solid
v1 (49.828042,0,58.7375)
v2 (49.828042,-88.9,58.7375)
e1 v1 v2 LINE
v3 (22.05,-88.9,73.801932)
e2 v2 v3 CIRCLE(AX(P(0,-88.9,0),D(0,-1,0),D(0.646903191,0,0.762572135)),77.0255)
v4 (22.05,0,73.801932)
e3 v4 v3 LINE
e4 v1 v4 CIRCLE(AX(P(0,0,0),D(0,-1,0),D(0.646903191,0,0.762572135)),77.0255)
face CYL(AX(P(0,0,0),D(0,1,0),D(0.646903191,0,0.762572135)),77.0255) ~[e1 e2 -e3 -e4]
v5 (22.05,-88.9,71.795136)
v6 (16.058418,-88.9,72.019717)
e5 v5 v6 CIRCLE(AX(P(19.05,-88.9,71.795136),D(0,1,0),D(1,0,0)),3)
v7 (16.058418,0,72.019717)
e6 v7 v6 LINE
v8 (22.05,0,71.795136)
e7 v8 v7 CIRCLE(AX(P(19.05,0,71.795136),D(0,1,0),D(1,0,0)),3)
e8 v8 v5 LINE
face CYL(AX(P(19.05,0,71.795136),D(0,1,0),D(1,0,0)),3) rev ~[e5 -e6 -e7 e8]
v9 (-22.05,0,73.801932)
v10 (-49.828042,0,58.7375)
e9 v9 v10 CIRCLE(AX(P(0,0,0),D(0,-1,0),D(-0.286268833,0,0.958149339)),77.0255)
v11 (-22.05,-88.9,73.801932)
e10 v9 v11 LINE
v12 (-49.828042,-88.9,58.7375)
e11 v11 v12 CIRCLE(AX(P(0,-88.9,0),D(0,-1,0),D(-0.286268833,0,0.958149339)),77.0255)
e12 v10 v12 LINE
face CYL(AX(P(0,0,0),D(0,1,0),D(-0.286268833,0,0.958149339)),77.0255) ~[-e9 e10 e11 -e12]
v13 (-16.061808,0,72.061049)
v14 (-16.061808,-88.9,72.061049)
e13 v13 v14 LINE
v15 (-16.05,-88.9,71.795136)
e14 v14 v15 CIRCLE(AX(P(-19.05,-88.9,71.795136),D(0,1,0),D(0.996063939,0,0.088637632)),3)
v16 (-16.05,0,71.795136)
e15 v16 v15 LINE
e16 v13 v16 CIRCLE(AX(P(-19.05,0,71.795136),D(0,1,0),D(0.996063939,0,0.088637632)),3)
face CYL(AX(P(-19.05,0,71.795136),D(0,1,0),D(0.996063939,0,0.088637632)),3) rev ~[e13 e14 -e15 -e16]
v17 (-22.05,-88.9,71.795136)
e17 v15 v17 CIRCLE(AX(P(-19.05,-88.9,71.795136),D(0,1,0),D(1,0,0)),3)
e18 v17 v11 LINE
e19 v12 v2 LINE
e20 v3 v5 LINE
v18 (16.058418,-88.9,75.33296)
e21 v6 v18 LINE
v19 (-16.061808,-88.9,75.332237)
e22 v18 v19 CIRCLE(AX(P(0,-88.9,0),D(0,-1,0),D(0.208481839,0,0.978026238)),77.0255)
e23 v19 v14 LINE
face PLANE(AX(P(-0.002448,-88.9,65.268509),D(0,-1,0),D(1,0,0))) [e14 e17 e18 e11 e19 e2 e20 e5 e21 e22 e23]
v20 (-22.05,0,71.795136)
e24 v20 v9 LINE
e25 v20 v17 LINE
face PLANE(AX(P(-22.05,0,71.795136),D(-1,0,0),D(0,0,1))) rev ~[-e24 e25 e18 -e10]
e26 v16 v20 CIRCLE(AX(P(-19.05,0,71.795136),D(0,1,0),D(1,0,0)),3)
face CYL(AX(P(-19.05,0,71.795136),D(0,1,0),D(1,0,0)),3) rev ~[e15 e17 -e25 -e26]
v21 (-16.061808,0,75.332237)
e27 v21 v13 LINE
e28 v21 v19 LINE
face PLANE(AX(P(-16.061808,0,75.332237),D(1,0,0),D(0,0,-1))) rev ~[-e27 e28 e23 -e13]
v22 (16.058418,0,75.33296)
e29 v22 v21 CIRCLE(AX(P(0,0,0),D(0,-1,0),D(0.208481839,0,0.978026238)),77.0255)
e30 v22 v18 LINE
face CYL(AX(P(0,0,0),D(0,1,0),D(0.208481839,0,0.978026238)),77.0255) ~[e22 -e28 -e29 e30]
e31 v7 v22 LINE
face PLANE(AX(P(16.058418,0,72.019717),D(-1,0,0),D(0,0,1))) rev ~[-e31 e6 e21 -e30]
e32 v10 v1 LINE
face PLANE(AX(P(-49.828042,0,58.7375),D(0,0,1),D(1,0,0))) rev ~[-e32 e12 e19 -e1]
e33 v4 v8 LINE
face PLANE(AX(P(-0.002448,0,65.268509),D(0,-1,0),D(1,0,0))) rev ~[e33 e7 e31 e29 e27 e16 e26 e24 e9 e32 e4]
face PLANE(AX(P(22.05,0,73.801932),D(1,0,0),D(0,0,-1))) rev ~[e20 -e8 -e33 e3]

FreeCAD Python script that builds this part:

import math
import FreeCAD as App
import Part
import Sketcher
Q = App.Units.Quantity

doc = App.newDocument("Part")
body = doc.addObject("PartDesign::Body", "Body")

sketch1 = body.newObject("Sketcher::SketchObject", "Sketch")
sketch1.AttachmentSupport = (doc.getObject("XZ_Plane"), [""])
sketch1.MapMode = "FlatFace"
sketch1.addGeometry([
    Part.LineSegment(App.Vector(-49.828042, 58.7375, 0), App.Vector(49.828042, 58.7375, 0)),
    Part.ArcOfCircle(Part.Circle(App.Vector(0, 0, 0), App.Vector(0, 0, 1), 77.0255), math.radians(49.691479), math.radians(73.365292)),
    Part.LineSegment(App.Vector(22.05, 73.801932, 0), App.Vector(22.05, 71.795136, 0)),
    Part.ArcOfCircle(Part.Circle(App.Vector(19.05, 71.795136, 0), App.Vector(0, 0, 1), 3), math.radians(175.706818), math.radians(360)),
    Part.LineSegment(App.Vector(16.058418, 72.019717, 0), App.Vector(16.058418, 75.33296, 0)),
    Part.ArcOfCircle(Part.Circle(App.Vector(0, 0, 0), App.Vector(0, 0, 1), 77.0255), math.radians(77.966601), math.radians(102.035978)),
    Part.LineSegment(App.Vector(-16.061808, 75.332237, 0), App.Vector(-16.061808, 72.061049, 0)),
    Part.ArcOfCircle(Part.Circle(App.Vector(-19.05, 71.795136, 0), App.Vector(0, 0, 1), 3), math.radians(0), math.radians(5.085236)),
    Part.ArcOfCircle(Part.Circle(App.Vector(-19.05, 71.795136, 0), App.Vector(0, 0, 1), 3), math.radians(180), math.radians(360)),
    Part.LineSegment(App.Vector(-22.05, 71.795136, 0), App.Vector(-22.05, 73.801932, 0)),
    Part.ArcOfCircle(Part.Circle(App.Vector(0, 0, 0), App.Vector(0, 0, 1), 77.0255), math.radians(106.634708), math.radians(130.308521)),
], False)
sketch1.addConstraint([
    Sketcher.Constraint("Coincident", 0, 2, 1, 1),
    Sketcher.Constraint("Coincident", 1, 2, 2, 1),
    Sketcher.Constraint("Coincident", 2, 2, 3, 2),
    Sketcher.Constraint("Coincident", 3, 1, 4, 1),
    Sketcher.Constraint("Coincident", 4, 2, 5, 1),
    Sketcher.Constraint("Coincident", 5, 2, 6, 1),
    Sketcher.Constraint("Coincident", 6, 2, 7, 2),
    Sketcher.Constraint("Coincident", 7, 1, 8, 2),
    Sketcher.Constraint("Coincident", 8, 1, 9, 1),
    Sketcher.Constraint("Coincident", 9, 2, 10, 1),
    Sketcher.Constraint("Coincident", 10, 2, 0, 1),
    Sketcher.Constraint("Horizontal", 0),
    Sketcher.Constraint("Vertical", 2),
    Sketcher.Constraint("Vertical", 4),
    Sketcher.Constraint("Vertical", 6),
    Sketcher.Constraint("Vertical", 9),
    Sketcher.Constraint("Coincident", 1, 3, -1, 1),
    Sketcher.Constraint("Coincident", 5, 3, -1, 1),
    Sketcher.Constraint("Coincident", 10, 3, -1, 1),
    Sketcher.Constraint("Coincident", 8, 3, 7, 3),
    Sketcher.Constraint("Radius", 1, Q("3.0325 in")),
    Sketcher.Constraint("Radius", 5, Q("3.0325 in")),
    Sketcher.Constraint("Radius", 10, Q("3.0325 in")),
    Sketcher.Constraint("DistanceX", 7, 3, 3, 3, Q("1.5 in")),
    Sketcher.Constraint("DistanceX", -1, 1, 3, 3, Q("0.75 in")),
    Sketcher.Constraint("Radius", 3, 3.0),
    Sketcher.Constraint("Radius", 7, 3.0),
    Sketcher.Constraint("DistanceY", -1, 1, 0, 2, Q("2.3125 in")),
    Sketcher.Constraint("DistanceY", 8, 3, 5, 2, 3.537101),
    Sketcher.Constraint("DistanceY", 3, 3, 5, 2, 3.537101),
    Sketcher.Constraint("DistanceY", 7, 1, 5, 2, 3.537101),
    Sketcher.Constraint("DistanceY", 8, 1, 5, 2, 3.537101),
    Sketcher.Constraint("DistanceY", 2, 2, 2, 1, 2.006795),
    Sketcher.Constraint("DistanceY", 4, 1, 4, 2, 3.313243),
    Sketcher.Constraint("DistanceY", 6, 2, 6, 1, 3.271188),
])
pad1 = body.newObject("PartDesign::Pad", "Pad")
pad1.Profile = sketch1
pad1.Length = Q("3.5 in")

doc.recompute()
